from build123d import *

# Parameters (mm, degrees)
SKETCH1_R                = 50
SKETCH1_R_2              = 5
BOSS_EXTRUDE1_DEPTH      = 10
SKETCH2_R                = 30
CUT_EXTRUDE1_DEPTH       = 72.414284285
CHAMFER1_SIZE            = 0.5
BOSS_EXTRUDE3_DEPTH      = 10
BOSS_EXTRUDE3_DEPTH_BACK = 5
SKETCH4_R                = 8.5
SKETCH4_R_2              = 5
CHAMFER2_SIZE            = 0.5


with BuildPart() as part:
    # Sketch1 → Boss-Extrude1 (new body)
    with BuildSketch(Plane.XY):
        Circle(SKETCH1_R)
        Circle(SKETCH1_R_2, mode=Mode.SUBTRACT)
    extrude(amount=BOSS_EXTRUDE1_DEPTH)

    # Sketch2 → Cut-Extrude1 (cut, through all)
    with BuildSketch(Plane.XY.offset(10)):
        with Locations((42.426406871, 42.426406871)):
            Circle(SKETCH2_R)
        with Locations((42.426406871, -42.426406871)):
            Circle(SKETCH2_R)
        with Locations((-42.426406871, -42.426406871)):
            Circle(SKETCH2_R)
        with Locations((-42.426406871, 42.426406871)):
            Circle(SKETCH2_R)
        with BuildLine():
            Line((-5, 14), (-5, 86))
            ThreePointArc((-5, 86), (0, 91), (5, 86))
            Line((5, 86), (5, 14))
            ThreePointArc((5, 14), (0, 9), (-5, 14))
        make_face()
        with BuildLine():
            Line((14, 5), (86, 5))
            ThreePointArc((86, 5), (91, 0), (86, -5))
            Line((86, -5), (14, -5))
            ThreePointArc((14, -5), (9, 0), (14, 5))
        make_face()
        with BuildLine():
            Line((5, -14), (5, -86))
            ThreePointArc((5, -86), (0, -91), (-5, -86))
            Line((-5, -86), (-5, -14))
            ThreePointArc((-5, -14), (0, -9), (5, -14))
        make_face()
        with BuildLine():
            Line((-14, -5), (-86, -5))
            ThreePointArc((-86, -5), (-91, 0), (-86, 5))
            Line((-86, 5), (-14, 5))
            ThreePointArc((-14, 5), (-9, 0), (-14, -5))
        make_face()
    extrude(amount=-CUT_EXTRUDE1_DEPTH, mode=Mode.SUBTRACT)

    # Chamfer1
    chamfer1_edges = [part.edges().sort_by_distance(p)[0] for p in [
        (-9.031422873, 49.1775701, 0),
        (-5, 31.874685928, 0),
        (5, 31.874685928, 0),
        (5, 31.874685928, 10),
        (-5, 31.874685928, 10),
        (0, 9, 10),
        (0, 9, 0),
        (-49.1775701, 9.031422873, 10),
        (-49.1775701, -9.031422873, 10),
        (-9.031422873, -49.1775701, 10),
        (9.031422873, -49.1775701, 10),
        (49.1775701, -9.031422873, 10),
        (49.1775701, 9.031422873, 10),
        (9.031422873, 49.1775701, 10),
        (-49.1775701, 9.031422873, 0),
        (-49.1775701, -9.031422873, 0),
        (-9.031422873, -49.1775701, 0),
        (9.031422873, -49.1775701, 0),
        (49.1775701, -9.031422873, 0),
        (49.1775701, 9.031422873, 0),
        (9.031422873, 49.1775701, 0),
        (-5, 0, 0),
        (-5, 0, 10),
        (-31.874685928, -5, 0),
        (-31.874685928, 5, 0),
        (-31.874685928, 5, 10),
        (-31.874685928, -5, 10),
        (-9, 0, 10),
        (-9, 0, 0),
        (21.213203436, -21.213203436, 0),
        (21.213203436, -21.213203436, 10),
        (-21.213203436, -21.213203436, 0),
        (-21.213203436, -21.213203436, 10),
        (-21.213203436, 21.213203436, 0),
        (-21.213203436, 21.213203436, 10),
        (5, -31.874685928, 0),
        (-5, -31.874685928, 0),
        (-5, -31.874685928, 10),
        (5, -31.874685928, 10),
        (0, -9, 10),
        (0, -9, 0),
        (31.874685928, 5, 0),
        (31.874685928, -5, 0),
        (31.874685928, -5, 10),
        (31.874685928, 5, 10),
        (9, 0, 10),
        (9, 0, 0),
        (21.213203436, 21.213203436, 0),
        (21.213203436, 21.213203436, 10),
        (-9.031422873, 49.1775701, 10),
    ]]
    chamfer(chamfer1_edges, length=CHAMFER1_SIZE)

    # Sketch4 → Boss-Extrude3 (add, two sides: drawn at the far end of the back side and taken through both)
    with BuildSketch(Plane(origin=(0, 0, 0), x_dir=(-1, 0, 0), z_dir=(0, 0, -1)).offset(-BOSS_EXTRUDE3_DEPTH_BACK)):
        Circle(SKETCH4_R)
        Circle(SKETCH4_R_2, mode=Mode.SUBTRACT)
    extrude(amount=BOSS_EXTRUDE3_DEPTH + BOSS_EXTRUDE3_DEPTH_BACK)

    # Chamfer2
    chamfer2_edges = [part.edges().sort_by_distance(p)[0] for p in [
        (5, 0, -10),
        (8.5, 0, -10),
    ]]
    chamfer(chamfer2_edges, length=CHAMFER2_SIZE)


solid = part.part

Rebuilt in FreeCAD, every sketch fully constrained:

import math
import FreeCAD as App
import Part
import Sketcher

V = App.Vector
Q = App.Units.Quantity


def edges_at(feature, points):
    """Names of the edges that pass closest to the given points."""
    edges = feature.Shape.Edges
    near = lambda p: min(range(len(edges)), key=lambda i: edges[i].distToShape(Part.Vertex(*p))[0])
    return sorted({f"Edge{near(p) + 1}" for p in points})

doc = App.newDocument("Part")
body = doc.addObject("PartDesign::Body", "Body")

# Sketch on XY plane
sketch1 = body.newObject("Sketcher::SketchObject", "Sketch")
sketch1.AttachmentSupport = (doc.getObject("XY_Plane"), [""])
sketch1.MapMode = "FlatFace"
sketch1.addGeometry([
    Part.Circle(V(0, 0, 0), V(0, 0, 1), 50),
    Part.Circle(V(0, 0, 0), V(0, 0, 1), 5),
], False)
sketch1.addConstraint([
    Sketcher.Constraint("Coincident", 0, 3, -1, 1),
    Sketcher.Constraint("Coincident", 1, 3, -1, 1),
    Sketcher.Constraint("Diameter", 0, Q("100 mm")),
    Sketcher.Constraint("Diameter", 1, Q("10 mm")),
])
pad1 = body.newObject("PartDesign::Pad", "Pad")
pad1.Profile = sketch1
pad1.Length = 10

# Sketch on XY plane
sketch2 = body.newObject("Sketcher::SketchObject", "Sketch001")
sketch2.AttachmentSupport = (doc.getObject("XY_Plane"), [""])
sketch2.MapMode = "FlatFace"
sketch2.AttachmentOffset = App.Placement(V(0, 0, 10), App.Rotation())
sketch2.addGeometry([
    Part.Circle(V(42, 42, 0), V(0, 0, 1), 30),  # 0
    Part.Circle(V(42, -42, 0), V(0, 0, 1), 30),  # 1
    Part.Circle(V(-42, -42, 0), V(0, 0, 1), 30),  # 2
    Part.Circle(V(-42, 42, 0), V(0, 0, 1), 30),  # 3
    Part.LineSegment(V(-5, 86, 0), V(-5, 14, 0)),  # 4
    Part.ArcOfCircle(Part.Circle(V(0, 14, 0), V(0, 0, 1), 5), math.radians(180), math.radians(360)),  # 5
    Part.LineSegment(V(5, 14, 0), V(5, 86, 0)),  # 6
    Part.ArcOfCircle(Part.Circle(V(0, 86, 0), V(0, 0, 1), 5), math.radians(0), math.radians(180)),  # 7
    Part.LineSegment(V(86, 5, 0), V(14, 5, 0)),  # 8
    Part.ArcOfCircle(Part.Circle(V(14, 0, 0), V(0, 0, 1), 5), math.radians(90), math.radians(270)),  # 9
    Part.LineSegment(V(14, -5, 0), V(86, -5, 0)),  # 10
    Part.ArcOfCircle(Part.Circle(V(86, 0, 0), V(0, 0, 1), 5), math.radians(-90), math.radians(90)),  # 11
    Part.LineSegment(V(5, -86, 0), V(5, -14, 0)),  # 12
    Part.ArcOfCircle(Part.Circle(V(0, -14, 0), V(0, 0, 1), 5), math.radians(0), math.radians(180)),  # 13
    Part.LineSegment(V(-5, -14, 0), V(-5, -86, 0)),  # 14
    Part.ArcOfCircle(Part.Circle(V(0, -86, 0), V(0, 0, 1), 5), math.radians(180), math.radians(360)),  # 15
    Part.LineSegment(V(-86, -5, 0), V(-14, -5, 0)),  # 16
    Part.ArcOfCircle(Part.Circle(V(-14, 0, 0), V(0, 0, 1), 5), math.radians(-90), math.radians(90)),  # 17
    Part.LineSegment(V(-14, 5, 0), V(-86, 5, 0)),  # 18
    Part.ArcOfCircle(Part.Circle(V(-86, 0, 0), V(0, 0, 1), 5), math.radians(90), math.radians(270)),  # 19
], False)
sketch2.addConstraint([
    Sketcher.Constraint("Tangent", 4, 2, 5, 1),
    Sketcher.Constraint("Tangent", 5, 2, 6, 1),
    Sketcher.Constraint("Tangent", 6, 2, 7, 1),
    Sketcher.Constraint("Tangent", 7, 2, 4, 1),
    Sketcher.Constraint("Tangent", 8, 2, 9, 1),
    Sketcher.Constraint("Tangent", 9, 2, 10, 1),
    Sketcher.Constraint("Tangent", 10, 2, 11, 1),
    Sketcher.Constraint("Tangent", 11, 2, 8, 1),
    Sketcher.Constraint("Tangent", 12, 2, 13, 1),
    Sketcher.Constraint("Tangent", 13, 2, 14, 1),
    Sketcher.Constraint("Tangent", 14, 2, 15, 1),
    Sketcher.Constraint("Tangent", 15, 2, 12, 1),
    Sketcher.Constraint("Tangent", 16, 2, 17, 1),
    Sketcher.Constraint("Tangent", 17, 2, 18, 1),
    Sketcher.Constraint("Tangent", 18, 2, 19, 1),
    Sketcher.Constraint("Tangent", 19, 2, 16, 1),
    Sketcher.Constraint("Vertical", 4),
    Sketcher.Constraint("Vertical", 6),
    Sketcher.Constraint("Horizontal", 8),
    Sketcher.Constraint("Horizontal", 10),
    Sketcher.Constraint("Vertical", 12),
    Sketcher.Constraint("Vertical", 14),
    Sketcher.Constraint("Horizontal", 16),
    Sketcher.Constraint("Horizontal", 18),
    Sketcher.Constraint("Equal", 0, 1),
    Sketcher.Constraint("Equal", 1, 2),
    Sketcher.Constraint("Equal", 2, 3),
    Sketcher.Constraint("Equal", 7, 9),
    Sketcher.Constraint("Equal", 11, 13),
    Sketcher.Constraint("Equal", 15, 17),
    Sketcher.Constraint("Symmetric", 0, 3, 2, 3, -1, 1),
    Sketcher.Constraint("Symmetric", 1, 3, 3, 3, -1, 1),
    Sketcher.Constraint("Symmetric", 5, 3, 13, 3, -1, 1),
    Sketcher.Constraint("Symmetric", 9, 3, 17, 3, -1, 1),
    Sketcher.Constraint("Symmetric", 1, 3, 2, 3, -2),
    Sketcher.Constraint("Symmetric", 11, 3, 19, 3, -2),
    Sketcher.Constraint("Symmetric", 7, 3, 15, 3, -1),
    Sketcher.Constraint("Equal", 18, 4),
    Sketcher.Constraint("Diameter", 0, Q("60 mm")),
    Sketcher.Constraint("Radius", 5, Q("5 mm")),
    Sketcher.Constraint("DistanceX", 8, 2, 8, 1, Q("72 mm")),
    Sketcher.Constraint("DistanceY", -1, 1, 5, 3, Q("14 mm")),
    Sketcher.Constraint("DistanceX", -1, 1, 9, 3, Q("14 mm")),
    Sketcher.Constraint("DistanceX", -1, 1, 0, 3, Q("42.426407 mm")),
    Sketcher.Constraint("DistanceY", -1, 1, 0, 3, Q("42.426407 mm")),
])
pocket1 = body.newObject("PartDesign::Pocket", "Pocket")
pocket1.Profile = sketch2
pocket1.Type = "ThroughAll"
doc.recompute()

chamfer = body.newObject("PartDesign::Chamfer", "Chamfer")
chamfer.Base = (pocket1, edges_at(pocket1, [
    (-9.031, 49.178, 0),
    (-5, 31.875, 0),
    (5, 31.875, 0),
    (5, 31.875, 10),
    (-5, 31.875, 10),
    (0, 9, 10),
    (0, 9, 0),
    (-49.178, 9.031, 10),
    (-49.178, -9.031, 10),
    (-9.031, -49.178, 10),
    (9.031, -49.178, 10),
    (49.178, -9.031, 10),
    (49.178, 9.031, 10),
    (9.031, 49.178, 10),
    (-49.178, 9.031, 0),
    (-49.178, -9.031, 0),
    (-9.031, -49.178, 0),
    (9.031, -49.178, 0),
    (49.178, -9.031, 0),
    (49.178, 9.031, 0),
    (9.031, 49.178, 0),
    (-5, 0, 0),
    (-5, 0, 10),
    (-31.875, -5, 0),
    (-31.875, 5, 0),
    (-31.875, 5, 10),
    (-31.875, -5, 10),
    (-9, 0, 10),
    (-9, 0, 0),
    (21.213, -21.213, 0),
    (21.213, -21.213, 10),
    (-21.213, -21.213, 0),
    (-21.213, -21.213, 10),
    (-21.213, 21.213, 0),
    (-21.213, 21.213, 10),
    (5, -31.875, 0),
    (-5, -31.875, 0),
    (-5, -31.875, 10),
    (5, -31.875, 10),
    (0, -9, 10),
    (0, -9, 0),
    (31.875, 5, 0),
    (31.875, -5, 0),
    (31.875, -5, 10),
    (31.875, 5, 10),
    (9, 0, 10),
    (9, 0, 0),
    (21.213, 21.213, 0),
    (21.213, 21.213, 10),
    (-9.031, 49.178, 10),
]))
chamfer.Size = 0.5

# Sketch on XY plane
sketch3 = body.newObject("Sketcher::SketchObject", "Sketch002")
sketch3.AttachmentSupport = (doc.getObject("XY_Plane"), [""])
sketch3.MapMode = "FlatFace"
sketch3.addGeometry([
    Part.Circle(V(0, 0, 0), V(0, 0, 1), 8),
    Part.Circle(V(0, 0, 0), V(0, 0, 1), 5),
], False)
sketch3.addConstraint([
    Sketcher.Constraint("Coincident", 0, 3, -1, 1),
    Sketcher.Constraint("Coincident", 1, 3, -1, 1),
    Sketcher.Constraint("Diameter", 0, Q("17 mm")),
    Sketcher.Constraint("Diameter", 1, Q("10 mm")),
])
pad2 = body.newObject("PartDesign::Pad", "Pad001")
pad2.Profile = sketch3
pad2.Type = "TwoLengths"
pad2.Length = 10
pad2.Length2 = 5
pad2.Reversed = True
doc.recompute()

chamfer2 = body.newObject("PartDesign::Chamfer", "Chamfer001")
chamfer2.Base = (pad2, edges_at(pad2, [(5, 0, -10), (8.5, 0, -10)]))
chamfer2.Size = 0.5

doc.recompute()
